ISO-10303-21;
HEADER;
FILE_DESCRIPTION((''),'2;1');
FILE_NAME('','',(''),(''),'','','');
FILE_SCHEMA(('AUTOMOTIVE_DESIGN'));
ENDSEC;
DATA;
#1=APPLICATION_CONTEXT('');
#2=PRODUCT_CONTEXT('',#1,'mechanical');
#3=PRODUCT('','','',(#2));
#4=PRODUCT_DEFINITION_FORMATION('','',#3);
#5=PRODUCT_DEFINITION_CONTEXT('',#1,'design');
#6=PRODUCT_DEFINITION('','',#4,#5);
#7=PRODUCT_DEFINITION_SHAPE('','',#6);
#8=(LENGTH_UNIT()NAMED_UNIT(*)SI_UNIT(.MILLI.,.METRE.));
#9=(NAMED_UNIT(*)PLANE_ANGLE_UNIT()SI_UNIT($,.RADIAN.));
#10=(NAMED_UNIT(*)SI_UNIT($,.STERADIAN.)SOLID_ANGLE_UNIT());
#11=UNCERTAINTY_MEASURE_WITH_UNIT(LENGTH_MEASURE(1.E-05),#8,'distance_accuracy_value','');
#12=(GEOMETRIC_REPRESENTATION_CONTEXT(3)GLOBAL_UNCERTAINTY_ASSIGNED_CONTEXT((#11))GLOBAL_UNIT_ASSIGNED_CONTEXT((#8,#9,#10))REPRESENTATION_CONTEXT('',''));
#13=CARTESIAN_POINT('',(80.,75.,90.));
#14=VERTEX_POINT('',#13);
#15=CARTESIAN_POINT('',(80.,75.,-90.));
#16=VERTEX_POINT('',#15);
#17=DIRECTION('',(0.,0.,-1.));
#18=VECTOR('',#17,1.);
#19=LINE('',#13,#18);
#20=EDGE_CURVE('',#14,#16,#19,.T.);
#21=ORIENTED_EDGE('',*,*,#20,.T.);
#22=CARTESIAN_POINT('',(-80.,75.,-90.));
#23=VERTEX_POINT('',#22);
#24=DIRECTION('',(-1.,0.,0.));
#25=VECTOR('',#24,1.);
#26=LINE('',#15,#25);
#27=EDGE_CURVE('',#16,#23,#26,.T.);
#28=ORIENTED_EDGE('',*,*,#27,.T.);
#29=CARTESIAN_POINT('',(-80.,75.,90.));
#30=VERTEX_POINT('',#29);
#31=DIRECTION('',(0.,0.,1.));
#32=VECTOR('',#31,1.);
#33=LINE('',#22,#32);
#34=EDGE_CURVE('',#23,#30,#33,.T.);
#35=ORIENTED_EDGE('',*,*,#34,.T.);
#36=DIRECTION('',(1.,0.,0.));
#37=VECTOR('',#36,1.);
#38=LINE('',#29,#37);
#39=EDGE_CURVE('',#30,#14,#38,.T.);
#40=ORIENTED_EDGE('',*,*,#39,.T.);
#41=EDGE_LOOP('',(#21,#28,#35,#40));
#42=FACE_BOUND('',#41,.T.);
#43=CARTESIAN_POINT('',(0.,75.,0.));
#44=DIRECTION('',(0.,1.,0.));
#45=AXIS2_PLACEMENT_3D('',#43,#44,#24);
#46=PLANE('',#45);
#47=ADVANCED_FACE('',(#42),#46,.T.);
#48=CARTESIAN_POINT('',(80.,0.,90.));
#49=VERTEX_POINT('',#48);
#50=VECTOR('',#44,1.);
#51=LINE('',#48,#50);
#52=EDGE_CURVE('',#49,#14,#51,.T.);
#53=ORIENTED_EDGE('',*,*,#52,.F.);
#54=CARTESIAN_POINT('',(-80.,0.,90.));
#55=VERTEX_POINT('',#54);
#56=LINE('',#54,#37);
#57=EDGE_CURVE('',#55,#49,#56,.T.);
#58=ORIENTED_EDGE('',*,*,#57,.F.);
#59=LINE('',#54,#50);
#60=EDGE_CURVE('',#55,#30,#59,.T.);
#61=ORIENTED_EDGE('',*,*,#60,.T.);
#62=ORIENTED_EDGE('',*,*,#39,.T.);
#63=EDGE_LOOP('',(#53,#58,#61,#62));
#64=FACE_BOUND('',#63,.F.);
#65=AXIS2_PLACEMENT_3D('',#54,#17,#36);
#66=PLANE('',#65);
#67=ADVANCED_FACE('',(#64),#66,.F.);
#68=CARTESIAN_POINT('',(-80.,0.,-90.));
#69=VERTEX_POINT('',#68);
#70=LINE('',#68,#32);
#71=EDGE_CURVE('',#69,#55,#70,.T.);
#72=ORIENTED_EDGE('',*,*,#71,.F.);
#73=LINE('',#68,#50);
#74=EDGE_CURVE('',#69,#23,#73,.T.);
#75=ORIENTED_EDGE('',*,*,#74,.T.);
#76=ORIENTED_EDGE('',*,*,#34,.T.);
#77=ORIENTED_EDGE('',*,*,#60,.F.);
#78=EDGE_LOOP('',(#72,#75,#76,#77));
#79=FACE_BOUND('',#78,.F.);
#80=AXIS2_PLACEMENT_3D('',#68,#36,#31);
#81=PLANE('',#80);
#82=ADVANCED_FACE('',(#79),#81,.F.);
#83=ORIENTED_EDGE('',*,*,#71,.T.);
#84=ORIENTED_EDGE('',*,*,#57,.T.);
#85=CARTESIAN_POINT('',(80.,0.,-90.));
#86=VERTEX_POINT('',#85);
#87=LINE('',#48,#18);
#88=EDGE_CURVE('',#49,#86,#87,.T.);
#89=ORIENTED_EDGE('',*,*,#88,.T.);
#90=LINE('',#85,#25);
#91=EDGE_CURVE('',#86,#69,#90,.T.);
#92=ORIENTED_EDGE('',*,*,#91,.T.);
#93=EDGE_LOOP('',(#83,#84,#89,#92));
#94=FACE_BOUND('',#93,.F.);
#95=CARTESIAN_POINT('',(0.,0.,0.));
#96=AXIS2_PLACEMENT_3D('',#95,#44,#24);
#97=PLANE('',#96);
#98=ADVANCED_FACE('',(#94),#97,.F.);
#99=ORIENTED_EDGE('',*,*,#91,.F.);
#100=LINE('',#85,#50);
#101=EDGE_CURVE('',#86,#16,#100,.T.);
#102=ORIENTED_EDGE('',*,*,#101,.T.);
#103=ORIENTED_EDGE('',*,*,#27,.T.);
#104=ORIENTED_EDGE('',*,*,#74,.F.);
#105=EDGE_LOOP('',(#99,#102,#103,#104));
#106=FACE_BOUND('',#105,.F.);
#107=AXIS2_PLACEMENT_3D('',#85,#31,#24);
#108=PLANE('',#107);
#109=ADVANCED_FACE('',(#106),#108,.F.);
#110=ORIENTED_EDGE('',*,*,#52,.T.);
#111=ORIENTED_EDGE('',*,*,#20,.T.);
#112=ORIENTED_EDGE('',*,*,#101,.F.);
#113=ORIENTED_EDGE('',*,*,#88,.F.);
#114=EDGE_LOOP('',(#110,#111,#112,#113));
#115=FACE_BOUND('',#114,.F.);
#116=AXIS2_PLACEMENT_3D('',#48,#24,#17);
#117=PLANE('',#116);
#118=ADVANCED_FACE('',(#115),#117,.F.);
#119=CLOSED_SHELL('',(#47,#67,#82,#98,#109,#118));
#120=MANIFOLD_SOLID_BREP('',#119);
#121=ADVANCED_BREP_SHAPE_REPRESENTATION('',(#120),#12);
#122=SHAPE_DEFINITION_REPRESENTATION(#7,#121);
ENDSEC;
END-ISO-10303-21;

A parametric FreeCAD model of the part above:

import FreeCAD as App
import Part
import Sketcher
Q = App.Units.Quantity


def add_polygon(sketch, points):
    """Adds a closed chain of lines whose ends are joined by coincident constraints."""
    first, n = sketch.GeometryCount, len(points)
    for a, b in zip(points, points[1:] + points[:1]):
        sketch.addGeometry(Part.LineSegment(App.Vector(*a, 0), App.Vector(*b, 0)), False)
    for i in range(n):
        sketch.addConstraint(Sketcher.Constraint("Coincident", first + i, 2, first + (i + 1) % n, 1))

doc = App.newDocument("Part")
body = doc.addObject("PartDesign::Body", "Body")

sketch1 = doc.addObject("Sketcher::SketchObject", "Sketch")
body.addObject(sketch1)
sketch1.AttachmentSupport = (doc.XZ_Plane, [""])
sketch1.MapMode = "FlatFace"
add_polygon(sketch1, [(-80, -90), (-80, 90), (80, 90), (80, -90)])
sketch1.addConstraint(Sketcher.Constraint("Vertical", 0))
sketch1.addConstraint(Sketcher.Constraint("Horizontal", 1))
sketch1.addConstraint(Sketcher.Constraint("Vertical", 2))
sketch1.addConstraint(Sketcher.Constraint("Horizontal", 3))
sketch1.addConstraint(Sketcher.Constraint("Symmetric", 0, 2, 2, 2, -1, 1))
sketch1.addConstraint(Sketcher.Constraint("DistanceX", 1, 1, 1, 2, Q("160 mm")))
sketch1.addConstraint(Sketcher.Constraint("DistanceY", 0, 1, 0, 2, Q("180 mm")))
pad1 = doc.addObject("PartDesign::Pad", "Pad")
body.addObject(pad1)
pad1.Profile = sketch1
pad1.Length = 75
pad1.Reversed = True

doc.recompute()
